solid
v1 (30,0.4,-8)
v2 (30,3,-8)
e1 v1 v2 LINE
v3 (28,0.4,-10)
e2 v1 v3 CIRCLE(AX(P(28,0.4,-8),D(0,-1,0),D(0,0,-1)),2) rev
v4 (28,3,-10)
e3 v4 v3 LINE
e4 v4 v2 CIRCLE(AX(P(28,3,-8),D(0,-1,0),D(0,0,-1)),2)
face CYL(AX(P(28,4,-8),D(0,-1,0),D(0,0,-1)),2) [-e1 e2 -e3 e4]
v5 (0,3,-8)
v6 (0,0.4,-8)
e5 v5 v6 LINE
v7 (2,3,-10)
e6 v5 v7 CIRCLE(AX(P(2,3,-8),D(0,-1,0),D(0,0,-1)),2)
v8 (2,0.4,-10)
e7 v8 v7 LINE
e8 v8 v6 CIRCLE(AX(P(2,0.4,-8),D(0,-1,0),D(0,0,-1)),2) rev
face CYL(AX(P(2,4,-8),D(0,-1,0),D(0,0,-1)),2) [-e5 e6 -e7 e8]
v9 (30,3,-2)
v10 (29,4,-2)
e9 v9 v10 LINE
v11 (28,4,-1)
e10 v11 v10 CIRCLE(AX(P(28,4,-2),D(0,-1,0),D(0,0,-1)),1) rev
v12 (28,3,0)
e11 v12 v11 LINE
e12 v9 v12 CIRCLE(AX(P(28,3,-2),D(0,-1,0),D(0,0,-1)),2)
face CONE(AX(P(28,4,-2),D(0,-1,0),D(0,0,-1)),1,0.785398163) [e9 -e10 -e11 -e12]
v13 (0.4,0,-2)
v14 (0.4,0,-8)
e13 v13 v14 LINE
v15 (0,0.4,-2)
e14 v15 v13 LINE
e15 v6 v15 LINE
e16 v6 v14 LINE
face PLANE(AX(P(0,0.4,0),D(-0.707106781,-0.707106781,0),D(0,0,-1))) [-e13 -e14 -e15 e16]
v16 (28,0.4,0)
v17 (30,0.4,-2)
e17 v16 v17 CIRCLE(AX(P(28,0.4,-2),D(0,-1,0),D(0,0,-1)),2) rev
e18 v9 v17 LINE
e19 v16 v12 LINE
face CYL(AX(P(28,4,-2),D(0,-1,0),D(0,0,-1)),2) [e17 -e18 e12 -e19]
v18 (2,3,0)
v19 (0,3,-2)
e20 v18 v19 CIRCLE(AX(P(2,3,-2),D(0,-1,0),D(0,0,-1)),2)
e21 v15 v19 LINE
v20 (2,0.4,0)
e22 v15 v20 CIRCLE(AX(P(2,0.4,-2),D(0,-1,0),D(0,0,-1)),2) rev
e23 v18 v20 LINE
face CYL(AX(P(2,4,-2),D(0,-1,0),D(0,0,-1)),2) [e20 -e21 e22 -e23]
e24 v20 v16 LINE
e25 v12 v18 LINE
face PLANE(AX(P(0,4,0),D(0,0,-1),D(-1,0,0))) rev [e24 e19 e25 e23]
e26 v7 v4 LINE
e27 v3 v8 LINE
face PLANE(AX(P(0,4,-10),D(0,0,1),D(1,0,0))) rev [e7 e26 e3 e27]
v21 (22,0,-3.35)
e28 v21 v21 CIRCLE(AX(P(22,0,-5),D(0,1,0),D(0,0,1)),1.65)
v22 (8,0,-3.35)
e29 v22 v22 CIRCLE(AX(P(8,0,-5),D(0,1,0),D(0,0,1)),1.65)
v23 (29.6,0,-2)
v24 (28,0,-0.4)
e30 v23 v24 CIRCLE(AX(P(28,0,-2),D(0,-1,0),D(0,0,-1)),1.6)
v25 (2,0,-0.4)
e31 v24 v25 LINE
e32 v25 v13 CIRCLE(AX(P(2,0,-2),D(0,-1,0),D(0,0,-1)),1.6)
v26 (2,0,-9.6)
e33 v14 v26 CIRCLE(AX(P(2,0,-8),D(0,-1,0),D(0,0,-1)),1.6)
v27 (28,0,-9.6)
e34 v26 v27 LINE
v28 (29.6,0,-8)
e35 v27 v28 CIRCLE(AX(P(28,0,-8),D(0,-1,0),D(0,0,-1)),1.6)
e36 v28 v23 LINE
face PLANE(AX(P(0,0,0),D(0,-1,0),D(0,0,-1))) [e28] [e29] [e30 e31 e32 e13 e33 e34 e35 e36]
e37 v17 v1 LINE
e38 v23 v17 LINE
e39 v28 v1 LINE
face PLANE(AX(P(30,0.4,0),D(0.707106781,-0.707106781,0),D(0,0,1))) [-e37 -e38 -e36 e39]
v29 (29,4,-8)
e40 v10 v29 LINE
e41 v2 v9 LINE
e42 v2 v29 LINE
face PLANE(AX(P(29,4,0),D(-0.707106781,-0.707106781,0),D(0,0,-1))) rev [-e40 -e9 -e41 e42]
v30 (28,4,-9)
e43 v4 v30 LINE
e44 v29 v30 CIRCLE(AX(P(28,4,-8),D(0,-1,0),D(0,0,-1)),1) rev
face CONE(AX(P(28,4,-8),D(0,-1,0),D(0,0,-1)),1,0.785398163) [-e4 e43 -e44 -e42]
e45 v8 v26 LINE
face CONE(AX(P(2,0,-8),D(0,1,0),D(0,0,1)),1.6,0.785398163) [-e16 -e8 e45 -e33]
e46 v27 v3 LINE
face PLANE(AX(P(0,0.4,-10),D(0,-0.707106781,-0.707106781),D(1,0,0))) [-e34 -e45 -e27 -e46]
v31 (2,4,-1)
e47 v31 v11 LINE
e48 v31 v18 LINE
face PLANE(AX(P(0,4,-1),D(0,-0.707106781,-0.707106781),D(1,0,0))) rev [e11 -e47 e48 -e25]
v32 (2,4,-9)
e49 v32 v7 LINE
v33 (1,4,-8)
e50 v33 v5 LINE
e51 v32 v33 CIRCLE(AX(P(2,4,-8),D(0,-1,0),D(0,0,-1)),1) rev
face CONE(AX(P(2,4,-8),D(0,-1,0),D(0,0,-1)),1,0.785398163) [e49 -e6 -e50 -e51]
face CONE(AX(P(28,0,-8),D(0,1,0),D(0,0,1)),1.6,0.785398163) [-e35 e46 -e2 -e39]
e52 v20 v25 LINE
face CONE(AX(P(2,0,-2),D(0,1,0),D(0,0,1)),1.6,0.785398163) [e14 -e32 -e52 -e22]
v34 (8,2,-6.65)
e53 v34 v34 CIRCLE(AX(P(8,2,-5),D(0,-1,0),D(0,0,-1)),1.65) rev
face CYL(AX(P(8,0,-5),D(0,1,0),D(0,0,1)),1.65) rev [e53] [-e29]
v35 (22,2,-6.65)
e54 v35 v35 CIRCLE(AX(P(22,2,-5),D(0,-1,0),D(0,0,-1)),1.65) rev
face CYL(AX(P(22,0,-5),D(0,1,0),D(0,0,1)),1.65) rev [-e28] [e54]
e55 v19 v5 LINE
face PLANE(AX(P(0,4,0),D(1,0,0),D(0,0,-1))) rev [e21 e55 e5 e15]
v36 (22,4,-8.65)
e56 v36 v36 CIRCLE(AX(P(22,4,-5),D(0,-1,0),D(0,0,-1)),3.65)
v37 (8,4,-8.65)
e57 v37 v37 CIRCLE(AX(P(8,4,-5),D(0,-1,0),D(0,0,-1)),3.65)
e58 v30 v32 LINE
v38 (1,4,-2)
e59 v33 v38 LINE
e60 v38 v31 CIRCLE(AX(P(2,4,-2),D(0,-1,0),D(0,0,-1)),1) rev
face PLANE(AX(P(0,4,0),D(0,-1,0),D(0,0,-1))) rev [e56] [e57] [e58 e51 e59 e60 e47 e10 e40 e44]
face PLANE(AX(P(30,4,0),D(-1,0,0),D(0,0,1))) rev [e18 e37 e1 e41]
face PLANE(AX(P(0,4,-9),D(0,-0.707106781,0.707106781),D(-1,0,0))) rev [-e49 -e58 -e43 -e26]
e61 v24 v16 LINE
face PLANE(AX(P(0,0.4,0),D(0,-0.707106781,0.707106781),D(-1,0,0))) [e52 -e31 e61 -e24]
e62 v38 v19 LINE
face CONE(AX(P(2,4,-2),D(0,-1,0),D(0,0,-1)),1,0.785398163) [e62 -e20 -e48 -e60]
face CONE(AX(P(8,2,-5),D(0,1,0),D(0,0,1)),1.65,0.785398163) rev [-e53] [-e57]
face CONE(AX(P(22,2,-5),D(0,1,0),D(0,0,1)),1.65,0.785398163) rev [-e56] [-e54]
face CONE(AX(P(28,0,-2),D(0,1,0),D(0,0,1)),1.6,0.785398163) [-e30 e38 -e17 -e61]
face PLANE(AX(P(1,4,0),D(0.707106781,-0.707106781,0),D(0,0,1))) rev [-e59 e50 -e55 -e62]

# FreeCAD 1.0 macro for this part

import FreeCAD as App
import Part
import Sketcher


def edges_at(feature, points):
    """Names of the edges that pass closest to the given points."""
    edges = feature.Shape.Edges
    near = lambda p: min(range(len(edges)), key=lambda i: edges[i].distToShape(Part.Vertex(*p))[0])
    return sorted({f"Edge{near(p) + 1}" for p in points})


def add_polygon(sketch, points):
    """Adds a closed chain of lines whose ends are joined by coincident constraints."""
    first, n = sketch.GeometryCount, len(points)
    for a, b in zip(points, points[1:] + points[:1]):
        sketch.addGeometry(Part.LineSegment(App.Vector(*a, 0), App.Vector(*b, 0)), False)
    for i in range(n):
        sketch.addConstraint(Sketcher.Constraint("Coincident", first + i, 2, first + (i + 1) % n, 1))

doc = App.newDocument("Part")
params = doc.addObject("Spreadsheet::Sheet", "Params")
for row, (alias, value) in enumerate([
    ("sketch1_width", "30 mm"),
    ("sketch1_height", "10 mm"),
    ("pad1_length", "4 mm"),
    ("sketch2_diameter", "3.3 mm"),
    ("chamfer_size", "2 mm"),
    ("fillet_radius", "2 mm"),
    ("chamfer2_size", "0.4 mm"),
    ("chamfer3_size", "1 mm"),
], start=1):
    params.set(f"A{row}", alias)
    params.set(f"B{row}", "=" + value)
    params.setAlias(f"B{row}", alias)

body = doc.addObject("PartDesign::Body", "Body")

# Sketch on XZ plane
sketch1 = body.newObject("Sketcher::SketchObject", "Sketch")
sketch1.AttachmentSupport = (doc.getObject("XZ_Plane"), [""])
sketch1.MapMode = "FlatFace"
add_polygon(sketch1, [(0, -10), (0, 0), (30, 0), (30, -10)])  # lines 0-3
sketch1.addConstraint([
    Sketcher.Constraint("Vertical", 0),
    Sketcher.Constraint("Horizontal", 1),
    Sketcher.Constraint("Vertical", 2),
    Sketcher.Constraint("Horizontal", 3),
    Sketcher.Constraint("Coincident", 0, 2, -1, 1),
    Sketcher.Constraint("DistanceX", 1, 1, 1, 2, 30.0),
    Sketcher.Constraint("DistanceY", 0, 1, 0, 2, 10.0),
])
sketch1.setExpression("Constraints[9]", "Params.sketch1_width")
sketch1.setExpression("Constraints[10]", "Params.sketch1_height")
pad1 = body.newObject("PartDesign::Pad", "Pad")
pad1.Profile = sketch1
pad1.setExpression("Length", "Params.pad1_length")
pad1.Reversed = True

# Sketch on XZ plane
sketch2 = body.newObject("Sketcher::SketchObject", "Sketch001")
sketch2.AttachmentSupport = (doc.getObject("XZ_Plane"), [""])
sketch2.MapMode = "FlatFace"
sketch2.AttachmentOffset = App.Placement(App.Vector(0, 0, -4), App.Rotation())
sketch2.addGeometry([
    Part.Circle(App.Vector(8, -5, 0), App.Vector(0, 0, 1), 1.6),
    Part.Circle(App.Vector(22, -5, 0), App.Vector(0, 0, 1), 1.6),
], False)
sketch2.addConstraint([
    Sketcher.Constraint("Equal", 0, 1),
    Sketcher.Constraint("Horizontal", 0, 3, 1, 3),
    Sketcher.Constraint("Diameter", 0, 3.3),
    Sketcher.Constraint("DistanceX", -1, 1, 0, 3, 8.0),
    Sketcher.Constraint("DistanceY", 0, 3, -1, 1, 5.0),
    Sketcher.Constraint("DistanceX", -1, 1, 1, 3, 22.0),
])
sketch2.setExpression("Constraints[2]", "Params.sketch2_diameter")
pocket1 = body.newObject("PartDesign::Pocket", "Pocket")
pocket1.Profile = sketch2
pocket1.Type = "ThroughAll"
pocket1.Reversed = True
doc.recompute()

chamfer = body.newObject("PartDesign::Chamfer", "Chamfer")
chamfer.Base = (pocket1, edges_at(pocket1, [(8, 4, -6.65), (22, 4, -6.65)]))
chamfer.setExpression("Size", "Params.chamfer_size")
doc.recompute()

fillet = body.newObject("PartDesign::Fillet", "Fillet")
fillet.Base = (chamfer, edges_at(chamfer, [
    (0, 2, -10),
    (30, 2, -10),
    (30, 2, 0),
    (0, 2, 0),
]))
fillet.setExpression("Radius", "Params.fillet_radius")
doc.recompute()

chamfer2 = body.newObject("PartDesign::Chamfer", "Chamfer001")
chamfer2.Base = (fillet, edges_at(fillet, [
    (15, 0, -10),
    (0, 0, -5),
    (30, 0, -5),
    (15, 0, 0),
    (0.586, 0, -9.414),
    (0.586, 0, -0.586),
    (29.414, 0, -0.586),
    (29.414, 0, -9.414),
]))
chamfer2.setExpression("Size", "Params.chamfer2_size")
doc.recompute()

chamfer3 = body.newObject("PartDesign::Chamfer", "Chamfer002")
chamfer3.Base = (chamfer2, edges_at(chamfer2, [
    (15, 4, -10),
    (30, 4, -5),
    (0, 4, -5),
    (15, 4, 0),
    (0.586, 4, -9.414),
    (0.586, 4, -0.586),
    (29.414, 4, -0.586),
    (29.414, 4, -9.414),
]))
chamfer3.setExpression("Size", "Params.chamfer3_size")

doc.recompute()
